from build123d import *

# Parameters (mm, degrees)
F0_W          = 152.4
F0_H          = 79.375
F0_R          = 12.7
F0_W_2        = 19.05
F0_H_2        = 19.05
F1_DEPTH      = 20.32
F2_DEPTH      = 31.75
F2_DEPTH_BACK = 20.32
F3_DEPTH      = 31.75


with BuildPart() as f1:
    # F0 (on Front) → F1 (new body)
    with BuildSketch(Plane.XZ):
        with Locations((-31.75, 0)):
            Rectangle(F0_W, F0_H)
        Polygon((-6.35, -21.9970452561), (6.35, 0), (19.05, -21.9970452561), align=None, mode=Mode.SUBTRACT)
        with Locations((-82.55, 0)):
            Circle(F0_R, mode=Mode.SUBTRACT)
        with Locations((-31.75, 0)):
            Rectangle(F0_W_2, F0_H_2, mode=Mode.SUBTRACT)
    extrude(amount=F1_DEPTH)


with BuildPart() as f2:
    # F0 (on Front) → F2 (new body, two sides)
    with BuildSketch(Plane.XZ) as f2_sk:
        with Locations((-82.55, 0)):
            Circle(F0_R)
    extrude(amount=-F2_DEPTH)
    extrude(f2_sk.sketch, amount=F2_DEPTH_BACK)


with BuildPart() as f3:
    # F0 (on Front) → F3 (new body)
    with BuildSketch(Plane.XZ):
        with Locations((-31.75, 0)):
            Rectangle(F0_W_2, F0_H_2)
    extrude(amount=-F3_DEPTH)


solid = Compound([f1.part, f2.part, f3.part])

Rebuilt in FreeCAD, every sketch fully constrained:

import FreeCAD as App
import Part
import Sketcher

V = App.Vector
Q = App.Units.Quantity


def add_polygon(sketch, points):
    """Adds a closed chain of lines whose ends are joined by coincident constraints."""
    first, n = sketch.GeometryCount, len(points)
    for a, b in zip(points, points[1:] + points[:1]):
        sketch.addGeometry(Part.LineSegment(App.Vector(*a, 0), App.Vector(*b, 0)), False)
    for i in range(n):
        sketch.addConstraint(Sketcher.Constraint("Coincident", first + i, 2, first + (i + 1) % n, 1))

doc = App.newDocument("Part")
body = doc.addObject("PartDesign::Body", "Body")

sketch1 = body.newObject("Sketcher::SketchObject", "Sketch")
sketch1.AttachmentSupport = (doc.getObject("XZ_Plane"), [""])
sketch1.MapMode = "FlatFace"
add_polygon(sketch1, [(-108, 40), (-108, -40), (44, -40), (44, 40)])
add_polygon(sketch1, [(19, -22), (-6, -22), (6, 0)])
sketch1.addGeometry(Part.Circle(V(-83, 0, 0), V(0, 0, 1), 13), False)
add_polygon(sketch1, [(-22, -10), (-41, -10), (-41, 10), (-22, 10)])
sketch1.addConstraint([
    Sketcher.Constraint("Vertical", 0),
    Sketcher.Constraint("Horizontal", 1),
    Sketcher.Constraint("Vertical", 2),
    Sketcher.Constraint("Horizontal", 3),
    Sketcher.Constraint("Horizontal", 4),
    Sketcher.Constraint("Horizontal", 8),
    Sketcher.Constraint("Vertical", 9),
    Sketcher.Constraint("Horizontal", 10),
    Sketcher.Constraint("Vertical", 11),
    Sketcher.Constraint("PointOnObject", 7, 3, -1),
    Sketcher.Constraint("PointOnObject", 5, 2, -1),
    Sketcher.Constraint("Equal", 10, 9),
    Sketcher.Constraint("Equal", 5, 6),
    Sketcher.Constraint("Diameter", 7, Q("1 in")),
    Sketcher.Constraint("DistanceX", 1, 1, 1, 2, Q("6 in")),
    Sketcher.Constraint("DistanceX", 4, 2, 4, 1, Q("1 in")),
    Sketcher.Constraint("Distance", 5, Q("1 in")),
    Sketcher.Constraint("DistanceX", 0, 2, 7, 3, Q("1 in")),
    Sketcher.Constraint("DistanceX", 4, 2, 1, 2, Q("2 in")),
    Sketcher.Constraint("DistanceX", 8, 2, 8, 1, Q("0.75 in")),
    Sketcher.Constraint("DistanceY", 0, 2, 0, 1, Q("3.125 in")),
    Sketcher.Constraint("DistanceX", 7, 3, -1, 1, Q("3.25 in")),
    Sketcher.Constraint("DistanceY", 0, 2, -1, 1, Q("1.5625 in")),
    Sketcher.Constraint("DistanceX", 8, 2, -1, 1, Q("1.625 in")),
    Sketcher.Constraint("DistanceY", 8, 2, -1, 1, Q("0.375 in")),
])
pad1 = body.newObject("PartDesign::Pad", "Pad")
pad1.Profile = sketch1
pad1.Length = Q("0.8 in")
body2 = doc.addObject("PartDesign::Body", "Body001")

sketch2 = body2.newObject("Sketcher::SketchObject", "Sketch001")
sketch2.AttachmentSupport = (doc.getObject("XZ_Plane001"), [""])
sketch2.MapMode = "FlatFace"
sketch2.addGeometry(Part.Circle(V(-83, 0, 0), V(0, 0, 1), 13), False)
sketch2.addConstraint([
    Sketcher.Constraint("PointOnObject", 0, 3, -1),
    Sketcher.Constraint("Diameter", 0, Q("1 in")),
    Sketcher.Constraint("DistanceX", 0, 3, -1, 1, Q("3.25 in")),
])
pad2 = body2.newObject("PartDesign::Pad", "Pad001")
pad2.Profile = sketch2
pad2.Type = "TwoLengths"
pad2.Length = Q("1.25 in")
pad2.Length2 = Q("0.8 in")
pad2.Reversed = True
body3 = doc.addObject("PartDesign::Body", "Body002")

sketch3 = body3.newObject("Sketcher::SketchObject", "Sketch002")
sketch3.AttachmentSupport = (doc.getObject("XZ_Plane002"), [""])
sketch3.MapMode = "FlatFace"
add_polygon(sketch3, [(-41, 10), (-41, -10), (-22, -10), (-22, 10)])
sketch3.addConstraint([
    Sketcher.Constraint("Vertical", 0),
    Sketcher.Constraint("Horizontal", 1),
    Sketcher.Constraint("Vertical", 2),
    Sketcher.Constraint("Horizontal", 3),
    Sketcher.Constraint("Equal", 3, 0),
    Sketcher.Constraint("DistanceX", 1, 1, 1, 2, Q("0.75 in")),
    Sketcher.Constraint("DistanceX", 0, 2, -1, 1, Q("1.625 in")),
    Sketcher.Constraint("DistanceY", 0, 2, -1, 1, Q("0.375 in")),
])
pad3 = body3.newObject("PartDesign::Pad", "Pad002")
pad3.Profile = sketch3
pad3.Length = Q("1.25 in")
pad3.Reversed = True

doc.recompute()
